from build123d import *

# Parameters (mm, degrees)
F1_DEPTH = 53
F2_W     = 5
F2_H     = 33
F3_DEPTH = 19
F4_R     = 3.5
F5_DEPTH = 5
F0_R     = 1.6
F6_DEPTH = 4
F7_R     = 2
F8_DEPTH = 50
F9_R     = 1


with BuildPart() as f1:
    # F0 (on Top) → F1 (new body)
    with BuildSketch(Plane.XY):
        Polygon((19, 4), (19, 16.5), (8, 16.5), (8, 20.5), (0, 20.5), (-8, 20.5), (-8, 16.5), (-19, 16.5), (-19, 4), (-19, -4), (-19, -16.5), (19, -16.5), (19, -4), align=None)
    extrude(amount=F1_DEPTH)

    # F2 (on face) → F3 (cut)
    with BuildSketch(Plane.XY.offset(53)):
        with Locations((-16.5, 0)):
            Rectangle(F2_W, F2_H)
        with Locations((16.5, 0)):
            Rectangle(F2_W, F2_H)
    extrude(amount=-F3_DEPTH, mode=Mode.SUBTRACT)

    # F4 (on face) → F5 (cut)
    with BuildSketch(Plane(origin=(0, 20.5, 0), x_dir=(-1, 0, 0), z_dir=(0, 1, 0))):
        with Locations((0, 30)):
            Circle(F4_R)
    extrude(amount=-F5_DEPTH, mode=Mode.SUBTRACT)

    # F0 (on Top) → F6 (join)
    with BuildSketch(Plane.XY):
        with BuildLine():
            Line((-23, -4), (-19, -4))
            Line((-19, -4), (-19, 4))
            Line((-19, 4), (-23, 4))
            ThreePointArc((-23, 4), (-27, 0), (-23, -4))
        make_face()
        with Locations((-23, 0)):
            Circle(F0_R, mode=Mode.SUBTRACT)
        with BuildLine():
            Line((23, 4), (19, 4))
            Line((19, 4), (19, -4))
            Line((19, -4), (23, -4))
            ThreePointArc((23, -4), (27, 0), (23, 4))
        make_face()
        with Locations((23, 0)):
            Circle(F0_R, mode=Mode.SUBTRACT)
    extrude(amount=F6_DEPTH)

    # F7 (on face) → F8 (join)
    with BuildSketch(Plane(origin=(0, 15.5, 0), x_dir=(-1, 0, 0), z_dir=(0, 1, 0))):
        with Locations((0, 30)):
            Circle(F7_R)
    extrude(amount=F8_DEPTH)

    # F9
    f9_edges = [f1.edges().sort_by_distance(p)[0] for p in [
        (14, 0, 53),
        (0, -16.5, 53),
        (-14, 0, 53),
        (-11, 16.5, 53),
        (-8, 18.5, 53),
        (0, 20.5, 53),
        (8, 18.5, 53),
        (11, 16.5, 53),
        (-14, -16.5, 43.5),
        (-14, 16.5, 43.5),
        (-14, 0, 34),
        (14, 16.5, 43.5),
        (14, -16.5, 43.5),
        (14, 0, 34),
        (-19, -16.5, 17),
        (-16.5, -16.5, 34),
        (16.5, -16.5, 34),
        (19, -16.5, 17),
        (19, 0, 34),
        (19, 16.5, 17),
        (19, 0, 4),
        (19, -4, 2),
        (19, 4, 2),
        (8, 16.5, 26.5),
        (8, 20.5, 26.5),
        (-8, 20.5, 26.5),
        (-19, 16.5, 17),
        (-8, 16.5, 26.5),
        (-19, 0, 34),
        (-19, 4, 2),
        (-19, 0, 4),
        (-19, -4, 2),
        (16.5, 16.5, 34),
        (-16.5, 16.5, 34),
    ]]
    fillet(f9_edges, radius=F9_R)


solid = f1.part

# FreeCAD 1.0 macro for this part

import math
import FreeCAD as App
import Part
import Sketcher
from FreeCAD import Vector


def edges_at(feature, points):
    """Names of the edges that pass closest to the given points."""
    edges = feature.Shape.Edges
    near = lambda p: min(range(len(edges)), key=lambda i: edges[i].distToShape(Part.Vertex(*p))[0])
    return sorted({f"Edge{near(p) + 1}" for p in points})

doc = App.newDocument("Part")
body = doc.addObject("PartDesign::Body", "Body")

sketch1 = body.newObject("Sketcher::SketchObject", "Sketch")
sketch1.AttachmentSupport = (doc.getObject("XY_Plane"), [""])
sketch1.MapMode = "FlatFace"
sketch1.addGeometry(Part.LineSegment(Vector(19, 16.5, 0), Vector(8, 16.5, 0)), False)
sketch1.addGeometry(Part.LineSegment(Vector(8, 16.5, 0), Vector(8, 20.5, 0)), False)
sketch1.addGeometry(Part.LineSegment(Vector(8, 20.5, 0), Vector(-8, 20.5, 0)), False)
sketch1.addGeometry(Part.LineSegment(Vector(-8, 20.5, 0), Vector(-8, 16.5, 0)), False)
sketch1.addGeometry(Part.LineSegment(Vector(-8, 16.5, 0), Vector(-19, 16.5, 0)), False)
sketch1.addGeometry(Part.LineSegment(Vector(-19, 16.5, 0), Vector(-19, -16.5, 0)), False)
sketch1.addGeometry(Part.LineSegment(Vector(-19, -16.5, 0), Vector(19, -16.5, 0)), False)
sketch1.addGeometry(Part.LineSegment(Vector(19, -16.5, 0), Vector(19, 16.5, 0)), False)
sketch1.addConstraint(Sketcher.Constraint("Coincident", 0, 2, 1, 1))
sketch1.addConstraint(Sketcher.Constraint("Coincident", 1, 2, 2, 1))
sketch1.addConstraint(Sketcher.Constraint("Coincident", 2, 2, 3, 1))
sketch1.addConstraint(Sketcher.Constraint("Coincident", 3, 2, 4, 1))
sketch1.addConstraint(Sketcher.Constraint("Coincident", 4, 2, 5, 1))
sketch1.addConstraint(Sketcher.Constraint("Coincident", 5, 2, 6, 1))
sketch1.addConstraint(Sketcher.Constraint("Coincident", 6, 2, 7, 1))
sketch1.addConstraint(Sketcher.Constraint("Coincident", 7, 2, 0, 1))
sketch1.addConstraint(Sketcher.Constraint("Horizontal", 0))
sketch1.addConstraint(Sketcher.Constraint("Vertical", 1))
sketch1.addConstraint(Sketcher.Constraint("Horizontal", 2))
sketch1.addConstraint(Sketcher.Constraint("Vertical", 3))
sketch1.addConstraint(Sketcher.Constraint("Horizontal", 4))
sketch1.addConstraint(Sketcher.Constraint("Vertical", 5))
sketch1.addConstraint(Sketcher.Constraint("Horizontal", 6))
sketch1.addConstraint(Sketcher.Constraint("Vertical", 7))
sketch1.addConstraint(Sketcher.Constraint("Symmetric", 4, 2, 6, 2, -1, 1))
sketch1.addConstraint(Sketcher.Constraint("Symmetric", 0, 2, 3, 2, -2))
sketch1.addConstraint(Sketcher.Constraint("DistanceX", 0, 2, 0, 1, 11.0))
sketch1.addConstraint(Sketcher.Constraint("DistanceX", 2, 2, 2, 1, 16.0))
sketch1.addConstraint(Sketcher.Constraint("DistanceY", 1, 1, 1, 2, 4.0))
sketch1.addConstraint(Sketcher.Constraint("DistanceY", 5, 2, 5, 1, 33.0))
pad1 = body.newObject("PartDesign::Pad", "Pad")
pad1.Profile = sketch1
pad1.Length = 53

sketch2 = body.newObject("Sketcher::SketchObject", "Sketch001")
sketch2.AttachmentSupport = (doc.getObject("XY_Plane"), [""])
sketch2.MapMode = "FlatFace"
sketch2.AttachmentOffset = App.Placement(Vector(0, 0, 53), App.Rotation())
sketch2.addGeometry(Part.LineSegment(Vector(-19, 16, 0), Vector(-19, -16, 0)), False)
sketch2.addGeometry(Part.LineSegment(Vector(-19, -16, 0), Vector(-14, -16, 0)), False)
sketch2.addGeometry(Part.LineSegment(Vector(-14, -16, 0), Vector(-14, 16, 0)), False)
sketch2.addGeometry(Part.LineSegment(Vector(-14, 16, 0), Vector(-19, 16, 0)), False)
sketch2.addGeometry(Part.LineSegment(Vector(14, 16, 0), Vector(14, -16, 0)), False)
sketch2.addGeometry(Part.LineSegment(Vector(14, -16, 0), Vector(19, -16, 0)), False)
sketch2.addGeometry(Part.LineSegment(Vector(19, -16, 0), Vector(19, 16, 0)), False)
sketch2.addGeometry(Part.LineSegment(Vector(19, 16, 0), Vector(14, 16, 0)), False)
sketch2.addConstraint(Sketcher.Constraint("Coincident", 0, 2, 1, 1))
sketch2.addConstraint(Sketcher.Constraint("Coincident", 1, 2, 2, 1))
sketch2.addConstraint(Sketcher.Constraint("Coincident", 2, 2, 3, 1))
sketch2.addConstraint(Sketcher.Constraint("Coincident", 3, 2, 0, 1))
sketch2.addConstraint(Sketcher.Constraint("Coincident", 4, 2, 5, 1))
sketch2.addConstraint(Sketcher.Constraint("Coincident", 5, 2, 6, 1))
sketch2.addConstraint(Sketcher.Constraint("Coincident", 6, 2, 7, 1))
sketch2.addConstraint(Sketcher.Constraint("Coincident", 7, 2, 4, 1))
sketch2.addConstraint(Sketcher.Constraint("Vertical", 0))
sketch2.addConstraint(Sketcher.Constraint("Horizontal", 1))
sketch2.addConstraint(Sketcher.Constraint("Vertical", 2))
sketch2.addConstraint(Sketcher.Constraint("Horizontal", 3))
sketch2.addConstraint(Sketcher.Constraint("Vertical", 4))
sketch2.addConstraint(Sketcher.Constraint("Horizontal", 5))
sketch2.addConstraint(Sketcher.Constraint("Vertical", 6))
sketch2.addConstraint(Sketcher.Constraint("Horizontal", 7))
sketch2.addConstraint(Sketcher.Constraint("Symmetric", 2, 2, 4, 2, -1, 1))
sketch2.addConstraint(Sketcher.Constraint("Symmetric", 0, 2, 6, 2, -1, 1))
sketch2.addConstraint(Sketcher.Constraint("Horizontal", 1, 2, 4, 2))
sketch2.addConstraint(Sketcher.Constraint("DistanceX", 1, 1, 1, 2, 5.0))
sketch2.addConstraint(Sketcher.Constraint("DistanceY", 0, 2, 0, 1, 33.0))
sketch2.addConstraint(Sketcher.Constraint("DistanceX", 0, 2, -1, 1, 19.0))
pocket1 = body.newObject("PartDesign::Pocket", "Pocket")
pocket1.Profile = sketch2
pocket1.Length = 19

sketch3 = body.newObject("Sketcher::SketchObject", "Sketch002")
sketch3.AttachmentSupport = (doc.getObject("XZ_Plane"), [""])
sketch3.MapMode = "FlatFace"
sketch3.AttachmentOffset = App.Placement(Vector(0, 0, -20.5), App.Rotation())
sketch3.addGeometry(Part.Circle(Vector(0, 30, 0), Vector(0, 0, 1), 3.5), False)
sketch3.addConstraint(Sketcher.Constraint("PointOnObject", 0, 3, -2))
sketch3.addConstraint(Sketcher.Constraint("Diameter", 0, 7.0))
sketch3.addConstraint(Sketcher.Constraint("DistanceY", -1, 1, 0, 3, 30.0))
pocket2 = body.newObject("PartDesign::Pocket", "Pocket001")
pocket2.Profile = sketch3
pocket2.Length = 5
pocket2.Reversed = True

sketch4 = body.newObject("Sketcher::SketchObject", "Sketch003")
sketch4.AttachmentSupport = (doc.getObject("XY_Plane"), [""])
sketch4.MapMode = "FlatFace"
sketch4.addGeometry(Part.LineSegment(Vector(-23, -4, 0), Vector(-19, -4, 0)), False)
sketch4.addGeometry(Part.LineSegment(Vector(-19, -4, 0), Vector(-19, 4, 0)), False)
sketch4.addGeometry(Part.LineSegment(Vector(-19, 4, 0), Vector(-23, 4, 0)), False)
sketch4.addGeometry(Part.ArcOfCircle(Part.Circle(Vector(-23, 0, 0), Vector(0, 0, 1), 4), math.radians(90), math.radians(270)), False)
sketch4.addGeometry(Part.Circle(Vector(-23, 0, 0), Vector(0, 0, 1), 1.6), False)
sketch4.addGeometry(Part.LineSegment(Vector(23, 4, 0), Vector(19, 4, 0)), False)
sketch4.addGeometry(Part.LineSegment(Vector(19, 4, 0), Vector(19, -4, 0)), False)
sketch4.addGeometry(Part.LineSegment(Vector(19, -4, 0), Vector(23, -4, 0)), False)
sketch4.addGeometry(Part.ArcOfCircle(Part.Circle(Vector(23, 0, 0), Vector(0, 0, 1), 4), math.radians(-90), math.radians(90)), False)
sketch4.addGeometry(Part.Circle(Vector(23, 0, 0), Vector(0, 0, 1), 1.6), False)
sketch4.addConstraint(Sketcher.Constraint("Coincident", 0, 2, 1, 1))
sketch4.addConstraint(Sketcher.Constraint("Coincident", 1, 2, 2, 1))
sketch4.addConstraint(Sketcher.Constraint("Tangent", 2, 2, 3, 1))
sketch4.addConstraint(Sketcher.Constraint("Tangent", 3, 2, 0, 1))
sketch4.addConstraint(Sketcher.Constraint("Coincident", 5, 2, 6, 1))
sketch4.addConstraint(Sketcher.Constraint("Coincident", 6, 2, 7, 1))
sketch4.addConstraint(Sketcher.Constraint("Tangent", 7, 2, 8, 1))
sketch4.addConstraint(Sketcher.Constraint("Tangent", 8, 2, 5, 1))
sketch4.addConstraint(Sketcher.Constraint("Horizontal", 0))
sketch4.addConstraint(Sketcher.Constraint("Vertical", 1))
sketch4.addConstraint(Sketcher.Constraint("Horizontal", 2))
sketch4.addConstraint(Sketcher.Constraint("Horizontal", 5))
sketch4.addConstraint(Sketcher.Constraint("Vertical", 6))
sketch4.addConstraint(Sketcher.Constraint("Horizontal", 7))
sketch4.addConstraint(Sketcher.Constraint("Coincident", 4, 3, 3, 3))
sketch4.addConstraint(Sketcher.Constraint("Coincident", 9, 3, 8, 3))
sketch4.addConstraint(Sketcher.Constraint("Equal", 3, 8))
sketch4.addConstraint(Sketcher.Constraint("Equal", 4, 9))
sketch4.addConstraint(Sketcher.Constraint("Symmetric", 3, 3, 8, 3, -1, 1))
sketch4.addConstraint(Sketcher.Constraint("Symmetric", 1, 2, 5, 2, -2))
sketch4.addConstraint(Sketcher.Constraint("Radius", 3, 4.0))
sketch4.addConstraint(Sketcher.Constraint("Diameter", 4, 3.2))
sketch4.addConstraint(Sketcher.Constraint("DistanceX", 0, 1, 0, 2, 4.0))
sketch4.addConstraint(Sketcher.Constraint("DistanceX", 3, 3, -1, 1, 23.0))
pad2 = body.newObject("PartDesign::Pad", "Pad001")
pad2.Profile = sketch4
pad2.Length = 4

sketch5 = body.newObject("Sketcher::SketchObject", "Sketch004")
sketch5.AttachmentSupport = (doc.getObject("XZ_Plane"), [""])
sketch5.MapMode = "FlatFace"
sketch5.AttachmentOffset = App.Placement(Vector(0, 0, -15.5), App.Rotation())
sketch5.addGeometry(Part.Circle(Vector(0, 30, 0), Vector(0, 0, 1), 2), False)
sketch5.addConstraint(Sketcher.Constraint("PointOnObject", 0, 3, -2))
sketch5.addConstraint(Sketcher.Constraint("Diameter", 0, 4.0))
sketch5.addConstraint(Sketcher.Constraint("DistanceY", -1, 1, 0, 3, 30.0))
pad3 = body.newObject("PartDesign::Pad", "Pad002")
pad3.Profile = sketch5
pad3.Length = 50
pad3.Reversed = True
doc.recompute()

fillet = body.newObject("PartDesign::Fillet", "Fillet")
fillet.Base = (pad3, edges_at(pad3, [
    (14, 0, 53),
    (0, -16.5, 53),
    (-14, 0, 53),
    (-11, 16.5, 53),
    (-8, 18.5, 53),
    (0, 20.5, 53),
    (8, 18.5, 53),
    (11, 16.5, 53),
    (-14, -16.5, 43.5),
    (-14, 16.5, 43.5),
    (-14, 0, 34),
    (14, 16.5, 43.5),
    (14, -16.5, 43.5),
    (14, 0, 34),
    (-19, -16.5, 17),
    (-16.5, -16.5, 34),
    (16.5, -16.5, 34),
    (19, -16.5, 17),
    (19, 0, 34),
    (19, 16.5, 17),
    (19, 0, 4),
    (19, -4, 2),
    (19, 4, 2),
    (8, 16.5, 26.5),
    (8, 20.5, 26.5),
    (-8, 20.5, 26.5),
    (-19, 16.5, 17),
    (-8, 16.5, 26.5),
    (-19, 0, 34),
    (-19, 4, 2),
    (-19, 0, 4),
    (-19, -4, 2),
    (16.5, 16.5, 34),
    (-16.5, 16.5, 34),
]))
fillet.Radius = 1

doc.recompute()
